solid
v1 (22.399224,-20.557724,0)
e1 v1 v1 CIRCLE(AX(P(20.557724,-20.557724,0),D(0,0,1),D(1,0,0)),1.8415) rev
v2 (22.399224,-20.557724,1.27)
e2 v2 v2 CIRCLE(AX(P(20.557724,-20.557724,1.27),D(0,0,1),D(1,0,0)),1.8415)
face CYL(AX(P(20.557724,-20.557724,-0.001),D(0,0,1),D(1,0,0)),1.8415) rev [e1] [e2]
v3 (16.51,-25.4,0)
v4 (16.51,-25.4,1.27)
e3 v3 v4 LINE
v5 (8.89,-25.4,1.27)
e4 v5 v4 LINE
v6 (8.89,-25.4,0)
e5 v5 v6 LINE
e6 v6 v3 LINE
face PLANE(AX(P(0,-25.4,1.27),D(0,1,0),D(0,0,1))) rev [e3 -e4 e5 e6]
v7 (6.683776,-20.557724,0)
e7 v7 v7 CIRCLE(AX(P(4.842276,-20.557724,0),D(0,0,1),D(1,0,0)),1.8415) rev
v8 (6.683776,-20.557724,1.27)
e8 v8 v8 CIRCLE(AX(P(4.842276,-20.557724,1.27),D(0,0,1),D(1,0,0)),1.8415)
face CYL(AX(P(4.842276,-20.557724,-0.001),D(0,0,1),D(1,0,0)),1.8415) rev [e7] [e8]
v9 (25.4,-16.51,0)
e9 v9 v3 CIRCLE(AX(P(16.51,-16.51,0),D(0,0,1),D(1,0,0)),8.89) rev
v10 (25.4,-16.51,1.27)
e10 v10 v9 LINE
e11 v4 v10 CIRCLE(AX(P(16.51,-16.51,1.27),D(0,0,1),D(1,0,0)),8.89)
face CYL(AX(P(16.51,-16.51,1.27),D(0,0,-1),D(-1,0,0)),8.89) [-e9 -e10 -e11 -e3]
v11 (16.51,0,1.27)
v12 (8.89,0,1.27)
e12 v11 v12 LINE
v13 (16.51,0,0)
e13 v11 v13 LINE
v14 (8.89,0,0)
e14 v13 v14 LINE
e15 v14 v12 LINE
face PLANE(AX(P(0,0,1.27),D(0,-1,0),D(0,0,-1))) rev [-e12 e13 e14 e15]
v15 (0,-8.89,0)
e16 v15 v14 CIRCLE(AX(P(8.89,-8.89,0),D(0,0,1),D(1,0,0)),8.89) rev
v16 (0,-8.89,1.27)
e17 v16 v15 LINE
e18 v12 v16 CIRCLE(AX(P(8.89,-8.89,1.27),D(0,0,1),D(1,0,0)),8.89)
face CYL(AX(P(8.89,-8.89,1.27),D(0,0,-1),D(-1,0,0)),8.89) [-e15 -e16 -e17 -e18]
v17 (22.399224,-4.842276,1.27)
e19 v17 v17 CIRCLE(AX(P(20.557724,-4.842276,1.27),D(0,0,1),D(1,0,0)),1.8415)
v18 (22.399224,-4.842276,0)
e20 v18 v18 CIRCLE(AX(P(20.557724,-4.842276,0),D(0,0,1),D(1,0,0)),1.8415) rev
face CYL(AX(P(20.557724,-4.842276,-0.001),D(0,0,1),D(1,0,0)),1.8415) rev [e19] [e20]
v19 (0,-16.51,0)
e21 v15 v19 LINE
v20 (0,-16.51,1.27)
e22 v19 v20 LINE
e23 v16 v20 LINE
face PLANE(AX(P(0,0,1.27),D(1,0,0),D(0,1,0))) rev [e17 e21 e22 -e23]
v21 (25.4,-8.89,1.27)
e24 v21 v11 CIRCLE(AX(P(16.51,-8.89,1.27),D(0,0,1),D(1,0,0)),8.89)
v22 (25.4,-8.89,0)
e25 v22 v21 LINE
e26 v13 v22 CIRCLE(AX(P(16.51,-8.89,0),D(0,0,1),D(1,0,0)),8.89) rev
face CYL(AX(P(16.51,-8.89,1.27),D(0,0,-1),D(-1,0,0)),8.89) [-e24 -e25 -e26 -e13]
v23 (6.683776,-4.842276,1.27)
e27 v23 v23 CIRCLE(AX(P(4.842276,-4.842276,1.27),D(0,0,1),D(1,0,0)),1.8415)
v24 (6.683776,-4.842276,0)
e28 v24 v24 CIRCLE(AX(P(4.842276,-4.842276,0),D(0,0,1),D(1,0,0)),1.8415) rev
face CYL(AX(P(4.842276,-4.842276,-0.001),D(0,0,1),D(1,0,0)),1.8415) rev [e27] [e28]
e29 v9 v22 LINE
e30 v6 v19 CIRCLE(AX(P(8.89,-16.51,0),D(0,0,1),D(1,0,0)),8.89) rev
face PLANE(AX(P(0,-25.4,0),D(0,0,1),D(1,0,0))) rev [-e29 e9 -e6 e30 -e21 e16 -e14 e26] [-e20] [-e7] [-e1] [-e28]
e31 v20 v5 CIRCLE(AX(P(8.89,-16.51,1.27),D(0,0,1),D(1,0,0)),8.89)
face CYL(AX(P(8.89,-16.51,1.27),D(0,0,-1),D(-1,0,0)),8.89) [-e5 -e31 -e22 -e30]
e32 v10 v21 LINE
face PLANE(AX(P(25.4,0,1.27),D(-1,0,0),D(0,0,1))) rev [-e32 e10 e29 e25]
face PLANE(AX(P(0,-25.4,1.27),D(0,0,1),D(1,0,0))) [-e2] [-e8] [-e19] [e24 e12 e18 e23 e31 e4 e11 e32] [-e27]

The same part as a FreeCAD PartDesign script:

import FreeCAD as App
import Part
import Sketcher
Q = App.Units.Quantity


def edges_at(feature, points):
    """Names of the edges that pass closest to the given points."""
    edges = feature.Shape.Edges
    near = lambda p: min(range(len(edges)), key=lambda i: edges[i].distToShape(Part.Vertex(*p))[0])
    return sorted({f"Edge{near(p) + 1}" for p in points})


def add_polygon(sketch, points):
    """Adds a closed chain of lines whose ends are joined by coincident constraints."""
    first, n = sketch.GeometryCount, len(points)
    for a, b in zip(points, points[1:] + points[:1]):
        sketch.addGeometry(Part.LineSegment(App.Vector(*a, 0), App.Vector(*b, 0)), False)
    for i in range(n):
        sketch.addConstraint(Sketcher.Constraint("Coincident", first + i, 2, first + (i + 1) % n, 1))

doc = App.newDocument("Part")
body = doc.addObject("PartDesign::Body", "Body")

# Sketch on XY plane
sketch1 = body.newObject("Sketcher::SketchObject", "Sketch")
sketch1.AttachmentSupport = (doc.getObject("XY_Plane"), [""])
sketch1.MapMode = "FlatFace"
add_polygon(sketch1, [(0, 0), (0, -25), (25, -25), (25, 0)])  # lines 0-3
sketch1.addConstraint([
    Sketcher.Constraint("Vertical", 0),
    Sketcher.Constraint("Horizontal", 1),
    Sketcher.Constraint("Vertical", 2),
    Sketcher.Constraint("Horizontal", 3),
    Sketcher.Constraint("Coincident", 3, 2, -1, 1),
    Sketcher.Constraint("Equal", 3, 0),
    Sketcher.Constraint("DistanceX", 1, 1, 1, 2, Q("1 in")),
])
pad1 = body.newObject("PartDesign::Pad", "Pad")
pad1.Profile = sketch1
pad1.Length = Q("0.05 in")

# Sketch on XY plane
sketch2 = body.newObject("Sketcher::SketchObject", "Sketch001")
sketch2.AttachmentSupport = (doc.getObject("XY_Plane"), [""])
sketch2.MapMode = "FlatFace"
sketch2.AttachmentOffset = App.Placement(App.Vector(0, 0, 0.05 * 25.4), App.Rotation())
sketch2.addGeometry(Part.Circle(App.Vector(20.6, -4.8, 0), App.Vector(0, 0, 1), 1.8), False)
sketch2.addConstraint([
    Sketcher.Constraint("Diameter", 0, Q("0.145 in")),
    Sketcher.Constraint("DistanceX", -1, 1, 0, 3, 20.557724),
    Sketcher.Constraint("DistanceY", 0, 3, -1, 1, 4.842276),
])
pocket1 = body.newObject("PartDesign::Pocket", "Pocket")
pocket1.Profile = sketch2
pocket1.Type = "UpToFirst"

# Sketch on XY plane
sketch3 = body.newObject("Sketcher::SketchObject", "Sketch002")
sketch3.AttachmentSupport = (doc.getObject("XY_Plane"), [""])
sketch3.MapMode = "FlatFace"
sketch3.AttachmentOffset = App.Placement(App.Vector(0, 0, 0.05 * 25.4), App.Rotation())
sketch3.addGeometry(Part.Circle(App.Vector(4.8, -4.8, 0), App.Vector(0, 0, 1), 1.8), False)
sketch3.addConstraint([
    Sketcher.Constraint("Diameter", 0, Q("0.145 in")),
    Sketcher.Constraint("DistanceX", -1, 1, 0, 3, 4.842276),
    Sketcher.Constraint("DistanceY", 0, 3, -1, 1, 4.842276),
])
pocket2 = body.newObject("PartDesign::Pocket", "Pocket001")
pocket2.Profile = sketch3
pocket2.Type = "UpToFirst"

# Sketch on XY plane
sketch4 = body.newObject("Sketcher::SketchObject", "Sketch003")
sketch4.AttachmentSupport = (doc.getObject("XY_Plane"), [""])
sketch4.MapMode = "FlatFace"
sketch4.AttachmentOffset = App.Placement(App.Vector(0, 0, 0.05 * 25.4), App.Rotation())
sketch4.addGeometry(Part.Circle(App.Vector(4.8, -20.6, 0), App.Vector(0, 0, 1), 1.8), False)
sketch4.addConstraint([
    Sketcher.Constraint("Diameter", 0, Q("0.145 in")),
    Sketcher.Constraint("DistanceX", -1, 1, 0, 3, 4.842276),
    Sketcher.Constraint("DistanceY", 0, 3, -1, 1, 20.557724),
])
pocket3 = body.newObject("PartDesign::Pocket", "Pocket002")
pocket3.Profile = sketch4
pocket3.Type = "UpToFirst"

# Sketch on XY plane
sketch5 = body.newObject("Sketcher::SketchObject", "Sketch004")
sketch5.AttachmentSupport = (doc.getObject("XY_Plane"), [""])
sketch5.MapMode = "FlatFace"
sketch5.AttachmentOffset = App.Placement(App.Vector(0, 0, 0.05 * 25.4), App.Rotation())
sketch5.addGeometry(Part.Circle(App.Vector(20.6, -20.6, 0), App.Vector(0, 0, 1), 1.8), False)
sketch5.addConstraint([
    Sketcher.Constraint("Diameter", 0, Q("0.145 in")),
    Sketcher.Constraint("DistanceX", -1, 1, 0, 3, 20.557724),
    Sketcher.Constraint("DistanceY", 0, 3, -1, 1, 20.557724),
])
pocket4 = body.newObject("PartDesign::Pocket", "Pocket003")
pocket4.Profile = sketch5
pocket4.Type = "UpToFirst"
doc.recompute()

fillet = body.newObject("PartDesign::Fillet", "Fillet")
fillet.Base = (pocket4, edges_at(pocket4, [
    (0, 0, 0.635),
    (25.4, 0, 0.635),
    (25.4, -25.4, 0.635),
    (0, -25.4, 0.635),
]))
fillet.Radius = Q("0.35 in")

doc.recompute()
